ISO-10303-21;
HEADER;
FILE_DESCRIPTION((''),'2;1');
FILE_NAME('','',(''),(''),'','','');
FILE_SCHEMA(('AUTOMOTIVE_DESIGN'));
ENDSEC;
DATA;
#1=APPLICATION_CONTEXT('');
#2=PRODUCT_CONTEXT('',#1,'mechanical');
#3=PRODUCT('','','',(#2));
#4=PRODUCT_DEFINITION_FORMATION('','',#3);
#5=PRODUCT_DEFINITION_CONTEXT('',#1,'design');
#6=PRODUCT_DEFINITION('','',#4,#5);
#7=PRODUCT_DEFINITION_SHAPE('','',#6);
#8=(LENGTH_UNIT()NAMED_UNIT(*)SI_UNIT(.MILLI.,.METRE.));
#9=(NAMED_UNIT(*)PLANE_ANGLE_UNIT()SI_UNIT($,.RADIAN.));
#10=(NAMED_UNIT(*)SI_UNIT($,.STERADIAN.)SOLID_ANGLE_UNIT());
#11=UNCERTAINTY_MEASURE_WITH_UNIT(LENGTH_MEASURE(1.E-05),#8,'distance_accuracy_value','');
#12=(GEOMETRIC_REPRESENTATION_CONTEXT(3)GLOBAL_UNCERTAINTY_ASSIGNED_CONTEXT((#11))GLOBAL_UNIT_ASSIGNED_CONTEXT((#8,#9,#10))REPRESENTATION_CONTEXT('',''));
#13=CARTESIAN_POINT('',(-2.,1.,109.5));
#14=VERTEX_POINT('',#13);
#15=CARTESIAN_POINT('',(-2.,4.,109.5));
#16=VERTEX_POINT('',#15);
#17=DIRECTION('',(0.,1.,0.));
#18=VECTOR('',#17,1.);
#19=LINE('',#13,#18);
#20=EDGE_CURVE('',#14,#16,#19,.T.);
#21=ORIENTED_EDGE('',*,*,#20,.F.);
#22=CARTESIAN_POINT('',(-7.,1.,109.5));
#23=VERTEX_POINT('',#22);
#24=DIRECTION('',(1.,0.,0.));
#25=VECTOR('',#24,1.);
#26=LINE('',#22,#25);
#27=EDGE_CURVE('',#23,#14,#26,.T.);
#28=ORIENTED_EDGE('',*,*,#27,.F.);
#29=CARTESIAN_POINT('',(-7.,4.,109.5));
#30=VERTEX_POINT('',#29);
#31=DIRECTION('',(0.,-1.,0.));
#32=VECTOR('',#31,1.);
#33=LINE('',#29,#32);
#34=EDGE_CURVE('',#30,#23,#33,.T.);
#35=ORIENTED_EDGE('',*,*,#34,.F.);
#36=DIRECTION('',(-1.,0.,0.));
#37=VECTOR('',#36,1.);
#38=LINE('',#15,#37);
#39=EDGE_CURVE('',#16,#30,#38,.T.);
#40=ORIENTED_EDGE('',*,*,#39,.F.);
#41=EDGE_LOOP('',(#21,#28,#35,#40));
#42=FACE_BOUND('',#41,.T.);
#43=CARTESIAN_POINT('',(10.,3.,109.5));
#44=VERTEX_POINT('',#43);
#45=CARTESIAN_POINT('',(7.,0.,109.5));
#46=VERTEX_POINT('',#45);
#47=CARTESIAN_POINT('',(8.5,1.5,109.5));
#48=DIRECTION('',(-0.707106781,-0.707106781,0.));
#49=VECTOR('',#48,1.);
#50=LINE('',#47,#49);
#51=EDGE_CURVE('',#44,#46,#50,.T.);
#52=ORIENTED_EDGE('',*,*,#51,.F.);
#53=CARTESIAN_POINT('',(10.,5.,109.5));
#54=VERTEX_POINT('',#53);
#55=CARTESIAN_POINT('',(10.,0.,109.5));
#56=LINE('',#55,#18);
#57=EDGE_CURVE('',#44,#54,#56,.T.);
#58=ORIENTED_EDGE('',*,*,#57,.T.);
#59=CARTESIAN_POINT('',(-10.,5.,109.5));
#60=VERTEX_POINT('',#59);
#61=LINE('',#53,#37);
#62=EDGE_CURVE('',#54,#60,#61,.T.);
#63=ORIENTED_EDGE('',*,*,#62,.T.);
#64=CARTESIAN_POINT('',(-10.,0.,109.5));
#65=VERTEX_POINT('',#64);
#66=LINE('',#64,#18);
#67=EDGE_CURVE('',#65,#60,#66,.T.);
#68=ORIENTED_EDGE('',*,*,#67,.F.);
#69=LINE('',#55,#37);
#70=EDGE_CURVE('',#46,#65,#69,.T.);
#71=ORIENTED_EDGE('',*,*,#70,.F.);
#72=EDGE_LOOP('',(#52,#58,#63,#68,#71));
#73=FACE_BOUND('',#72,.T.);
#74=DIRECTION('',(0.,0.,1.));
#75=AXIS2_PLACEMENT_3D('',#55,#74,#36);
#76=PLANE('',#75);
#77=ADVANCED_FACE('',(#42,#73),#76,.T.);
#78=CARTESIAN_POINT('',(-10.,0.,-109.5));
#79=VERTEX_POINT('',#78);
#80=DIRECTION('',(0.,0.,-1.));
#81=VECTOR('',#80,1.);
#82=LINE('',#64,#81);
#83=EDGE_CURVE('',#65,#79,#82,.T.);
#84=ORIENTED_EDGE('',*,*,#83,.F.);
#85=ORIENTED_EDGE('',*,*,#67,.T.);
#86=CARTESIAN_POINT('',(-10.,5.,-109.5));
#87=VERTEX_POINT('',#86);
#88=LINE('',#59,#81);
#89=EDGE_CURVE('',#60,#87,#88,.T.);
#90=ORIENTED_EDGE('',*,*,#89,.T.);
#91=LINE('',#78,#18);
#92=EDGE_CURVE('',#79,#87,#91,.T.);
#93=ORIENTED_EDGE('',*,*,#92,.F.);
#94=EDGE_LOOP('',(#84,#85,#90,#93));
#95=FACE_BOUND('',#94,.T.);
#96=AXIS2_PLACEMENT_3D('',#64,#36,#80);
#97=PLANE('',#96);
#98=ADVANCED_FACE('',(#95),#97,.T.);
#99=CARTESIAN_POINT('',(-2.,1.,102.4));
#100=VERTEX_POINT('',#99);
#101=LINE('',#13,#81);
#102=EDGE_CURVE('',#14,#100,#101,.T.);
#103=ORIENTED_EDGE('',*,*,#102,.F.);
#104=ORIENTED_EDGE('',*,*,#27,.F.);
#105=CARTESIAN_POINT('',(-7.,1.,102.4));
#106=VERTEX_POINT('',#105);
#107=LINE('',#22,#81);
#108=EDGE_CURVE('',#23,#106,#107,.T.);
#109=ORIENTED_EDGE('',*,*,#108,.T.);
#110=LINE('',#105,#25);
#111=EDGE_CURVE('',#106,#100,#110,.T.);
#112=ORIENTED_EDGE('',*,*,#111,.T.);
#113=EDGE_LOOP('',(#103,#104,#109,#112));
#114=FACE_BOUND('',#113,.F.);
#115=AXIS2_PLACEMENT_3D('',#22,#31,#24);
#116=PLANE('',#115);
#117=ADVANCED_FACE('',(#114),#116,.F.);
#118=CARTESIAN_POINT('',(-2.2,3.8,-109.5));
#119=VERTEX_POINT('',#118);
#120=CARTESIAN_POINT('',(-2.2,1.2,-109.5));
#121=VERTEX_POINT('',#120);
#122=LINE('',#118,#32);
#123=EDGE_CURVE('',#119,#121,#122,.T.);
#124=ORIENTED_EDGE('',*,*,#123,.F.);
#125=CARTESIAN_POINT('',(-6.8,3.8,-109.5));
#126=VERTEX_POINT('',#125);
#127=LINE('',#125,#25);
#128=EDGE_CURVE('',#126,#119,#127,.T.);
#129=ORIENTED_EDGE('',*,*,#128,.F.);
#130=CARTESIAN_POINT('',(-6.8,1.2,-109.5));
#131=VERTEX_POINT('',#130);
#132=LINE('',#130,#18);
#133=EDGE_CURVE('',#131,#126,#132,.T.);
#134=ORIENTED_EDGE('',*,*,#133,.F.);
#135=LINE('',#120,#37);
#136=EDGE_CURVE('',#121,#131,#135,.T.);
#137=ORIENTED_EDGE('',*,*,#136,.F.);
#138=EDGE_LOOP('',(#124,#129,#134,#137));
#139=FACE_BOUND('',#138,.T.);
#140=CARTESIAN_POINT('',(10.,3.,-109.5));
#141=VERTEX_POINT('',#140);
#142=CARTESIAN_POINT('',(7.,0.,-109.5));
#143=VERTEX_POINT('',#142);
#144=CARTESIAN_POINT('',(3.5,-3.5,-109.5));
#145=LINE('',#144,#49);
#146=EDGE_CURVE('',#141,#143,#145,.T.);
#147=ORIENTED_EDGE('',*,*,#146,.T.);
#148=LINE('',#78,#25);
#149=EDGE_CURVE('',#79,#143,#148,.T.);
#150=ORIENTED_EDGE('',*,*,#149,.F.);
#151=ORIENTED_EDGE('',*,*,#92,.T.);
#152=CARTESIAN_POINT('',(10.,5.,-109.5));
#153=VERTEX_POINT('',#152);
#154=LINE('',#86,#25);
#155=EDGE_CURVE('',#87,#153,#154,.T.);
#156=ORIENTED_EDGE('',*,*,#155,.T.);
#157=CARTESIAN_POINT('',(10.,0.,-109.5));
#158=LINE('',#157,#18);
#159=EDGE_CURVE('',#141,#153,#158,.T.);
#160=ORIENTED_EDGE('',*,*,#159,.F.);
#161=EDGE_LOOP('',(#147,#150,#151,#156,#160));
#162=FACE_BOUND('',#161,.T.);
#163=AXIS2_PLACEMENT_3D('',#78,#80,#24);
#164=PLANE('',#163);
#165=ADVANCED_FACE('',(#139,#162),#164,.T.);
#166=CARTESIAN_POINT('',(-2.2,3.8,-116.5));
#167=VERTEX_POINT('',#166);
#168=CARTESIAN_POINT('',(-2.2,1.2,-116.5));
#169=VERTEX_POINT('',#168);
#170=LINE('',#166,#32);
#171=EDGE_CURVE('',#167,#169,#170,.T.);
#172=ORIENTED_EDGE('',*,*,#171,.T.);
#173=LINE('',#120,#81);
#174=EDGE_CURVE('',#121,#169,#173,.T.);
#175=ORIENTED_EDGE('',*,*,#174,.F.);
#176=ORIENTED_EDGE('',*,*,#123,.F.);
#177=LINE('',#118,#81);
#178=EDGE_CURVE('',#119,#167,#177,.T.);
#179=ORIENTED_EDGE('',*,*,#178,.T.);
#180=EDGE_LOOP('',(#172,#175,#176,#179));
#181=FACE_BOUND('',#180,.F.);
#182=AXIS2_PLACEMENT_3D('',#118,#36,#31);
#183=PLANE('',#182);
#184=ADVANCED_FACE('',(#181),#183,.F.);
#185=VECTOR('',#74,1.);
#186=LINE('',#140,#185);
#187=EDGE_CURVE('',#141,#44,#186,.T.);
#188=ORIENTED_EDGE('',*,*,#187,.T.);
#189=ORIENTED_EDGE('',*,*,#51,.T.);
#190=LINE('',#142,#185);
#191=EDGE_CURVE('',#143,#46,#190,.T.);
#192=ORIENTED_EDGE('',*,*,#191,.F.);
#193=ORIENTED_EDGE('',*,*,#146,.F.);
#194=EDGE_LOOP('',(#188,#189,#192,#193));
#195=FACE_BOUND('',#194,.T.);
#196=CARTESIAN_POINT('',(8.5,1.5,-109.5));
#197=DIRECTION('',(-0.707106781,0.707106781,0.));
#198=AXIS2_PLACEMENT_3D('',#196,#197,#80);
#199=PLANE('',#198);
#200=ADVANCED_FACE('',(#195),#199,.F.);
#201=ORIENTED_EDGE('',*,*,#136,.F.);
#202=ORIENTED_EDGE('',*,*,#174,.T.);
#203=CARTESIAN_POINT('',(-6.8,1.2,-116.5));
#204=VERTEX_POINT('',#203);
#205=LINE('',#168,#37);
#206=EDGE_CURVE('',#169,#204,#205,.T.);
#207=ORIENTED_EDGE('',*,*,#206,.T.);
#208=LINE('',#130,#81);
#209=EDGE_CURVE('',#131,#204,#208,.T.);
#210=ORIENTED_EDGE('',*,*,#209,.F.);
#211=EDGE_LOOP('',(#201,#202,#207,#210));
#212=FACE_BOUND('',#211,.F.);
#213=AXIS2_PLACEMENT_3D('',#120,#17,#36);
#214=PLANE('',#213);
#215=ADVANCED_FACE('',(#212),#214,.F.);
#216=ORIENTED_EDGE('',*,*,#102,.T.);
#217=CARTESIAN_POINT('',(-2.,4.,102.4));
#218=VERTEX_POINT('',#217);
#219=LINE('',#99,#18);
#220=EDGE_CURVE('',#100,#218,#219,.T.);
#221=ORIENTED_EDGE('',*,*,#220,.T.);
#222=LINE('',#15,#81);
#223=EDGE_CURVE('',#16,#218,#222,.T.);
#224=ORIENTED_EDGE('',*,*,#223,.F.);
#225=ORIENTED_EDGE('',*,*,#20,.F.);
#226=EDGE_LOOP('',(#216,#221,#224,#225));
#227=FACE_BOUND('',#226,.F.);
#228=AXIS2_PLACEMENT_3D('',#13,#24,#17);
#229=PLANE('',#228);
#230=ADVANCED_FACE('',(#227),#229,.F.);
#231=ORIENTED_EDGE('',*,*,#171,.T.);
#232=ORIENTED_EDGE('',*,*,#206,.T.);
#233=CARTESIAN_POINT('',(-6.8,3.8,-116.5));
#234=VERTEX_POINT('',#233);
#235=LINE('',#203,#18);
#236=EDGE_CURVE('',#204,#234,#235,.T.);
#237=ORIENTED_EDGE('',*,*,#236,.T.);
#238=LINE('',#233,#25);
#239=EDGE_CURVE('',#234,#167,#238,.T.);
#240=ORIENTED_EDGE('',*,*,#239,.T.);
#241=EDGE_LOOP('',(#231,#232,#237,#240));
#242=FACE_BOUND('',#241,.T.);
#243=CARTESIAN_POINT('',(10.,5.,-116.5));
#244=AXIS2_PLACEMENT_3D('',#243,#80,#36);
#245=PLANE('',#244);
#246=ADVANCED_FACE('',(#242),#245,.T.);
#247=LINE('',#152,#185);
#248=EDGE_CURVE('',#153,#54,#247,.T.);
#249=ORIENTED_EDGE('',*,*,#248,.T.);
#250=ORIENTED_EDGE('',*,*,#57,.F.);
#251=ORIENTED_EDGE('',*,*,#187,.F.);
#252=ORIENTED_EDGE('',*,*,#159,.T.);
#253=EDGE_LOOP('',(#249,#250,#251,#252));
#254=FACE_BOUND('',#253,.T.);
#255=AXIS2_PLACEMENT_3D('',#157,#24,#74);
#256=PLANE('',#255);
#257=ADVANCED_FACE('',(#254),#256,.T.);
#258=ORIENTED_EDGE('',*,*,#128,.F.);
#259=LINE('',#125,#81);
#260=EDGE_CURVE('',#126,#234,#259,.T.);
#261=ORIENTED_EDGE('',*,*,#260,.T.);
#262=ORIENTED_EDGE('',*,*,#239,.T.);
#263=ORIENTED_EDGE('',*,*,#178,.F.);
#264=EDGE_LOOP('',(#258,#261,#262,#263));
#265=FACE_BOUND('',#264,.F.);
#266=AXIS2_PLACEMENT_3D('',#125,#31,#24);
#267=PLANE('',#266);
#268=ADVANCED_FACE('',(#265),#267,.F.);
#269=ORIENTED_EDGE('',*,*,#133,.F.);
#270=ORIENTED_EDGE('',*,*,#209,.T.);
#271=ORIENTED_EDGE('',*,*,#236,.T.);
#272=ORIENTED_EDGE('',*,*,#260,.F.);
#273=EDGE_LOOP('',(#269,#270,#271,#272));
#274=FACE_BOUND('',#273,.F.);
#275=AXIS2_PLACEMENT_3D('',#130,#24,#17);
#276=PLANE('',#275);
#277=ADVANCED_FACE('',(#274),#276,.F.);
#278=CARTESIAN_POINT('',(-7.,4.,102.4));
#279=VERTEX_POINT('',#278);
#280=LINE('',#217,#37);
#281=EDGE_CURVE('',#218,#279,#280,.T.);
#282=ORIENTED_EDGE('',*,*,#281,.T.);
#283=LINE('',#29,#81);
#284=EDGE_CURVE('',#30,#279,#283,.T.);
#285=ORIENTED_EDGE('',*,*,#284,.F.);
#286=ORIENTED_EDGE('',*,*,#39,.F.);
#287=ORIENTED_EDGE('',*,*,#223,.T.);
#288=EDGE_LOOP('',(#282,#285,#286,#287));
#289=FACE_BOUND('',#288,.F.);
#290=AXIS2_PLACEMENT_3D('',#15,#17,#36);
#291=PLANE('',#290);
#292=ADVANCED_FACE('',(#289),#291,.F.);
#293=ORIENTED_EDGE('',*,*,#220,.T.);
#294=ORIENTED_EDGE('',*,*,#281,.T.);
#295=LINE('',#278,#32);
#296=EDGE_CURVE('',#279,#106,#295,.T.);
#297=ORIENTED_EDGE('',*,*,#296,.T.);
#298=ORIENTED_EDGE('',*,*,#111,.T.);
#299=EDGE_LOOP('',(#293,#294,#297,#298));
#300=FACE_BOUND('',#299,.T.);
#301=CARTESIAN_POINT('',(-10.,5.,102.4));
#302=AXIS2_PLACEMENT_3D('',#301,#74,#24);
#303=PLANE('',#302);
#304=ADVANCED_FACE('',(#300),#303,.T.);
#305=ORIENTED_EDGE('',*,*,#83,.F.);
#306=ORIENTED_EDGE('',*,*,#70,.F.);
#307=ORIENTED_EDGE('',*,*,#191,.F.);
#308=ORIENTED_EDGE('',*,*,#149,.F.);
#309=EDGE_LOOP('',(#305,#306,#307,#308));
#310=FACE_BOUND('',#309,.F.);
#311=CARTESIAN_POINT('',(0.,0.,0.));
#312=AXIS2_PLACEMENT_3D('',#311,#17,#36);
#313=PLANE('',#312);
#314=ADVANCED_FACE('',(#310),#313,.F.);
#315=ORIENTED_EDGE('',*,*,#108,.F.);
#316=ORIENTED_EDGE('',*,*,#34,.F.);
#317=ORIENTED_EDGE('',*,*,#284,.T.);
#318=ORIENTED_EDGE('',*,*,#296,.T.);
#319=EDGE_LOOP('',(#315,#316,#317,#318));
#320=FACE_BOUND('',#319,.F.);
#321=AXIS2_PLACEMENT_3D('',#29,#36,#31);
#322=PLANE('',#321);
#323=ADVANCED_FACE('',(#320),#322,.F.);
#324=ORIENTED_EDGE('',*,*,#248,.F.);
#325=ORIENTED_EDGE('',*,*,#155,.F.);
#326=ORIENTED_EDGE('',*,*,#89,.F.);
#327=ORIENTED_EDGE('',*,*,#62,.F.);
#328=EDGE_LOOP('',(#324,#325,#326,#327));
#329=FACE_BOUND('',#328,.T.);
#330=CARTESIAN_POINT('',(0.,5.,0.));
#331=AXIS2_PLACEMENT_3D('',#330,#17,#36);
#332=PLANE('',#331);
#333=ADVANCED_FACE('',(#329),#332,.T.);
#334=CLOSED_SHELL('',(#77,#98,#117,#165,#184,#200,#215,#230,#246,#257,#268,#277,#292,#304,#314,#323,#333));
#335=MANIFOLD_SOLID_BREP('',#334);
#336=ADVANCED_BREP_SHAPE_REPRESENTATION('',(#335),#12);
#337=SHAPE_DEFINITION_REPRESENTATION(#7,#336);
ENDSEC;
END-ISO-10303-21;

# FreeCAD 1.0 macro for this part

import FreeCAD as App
import Part
import Sketcher
Q = App.Units.Quantity


def edges_at(feature, points):
    """Names of the edges that pass closest to the given points."""
    edges = feature.Shape.Edges
    near = lambda p: min(range(len(edges)), key=lambda i: edges[i].distToShape(Part.Vertex(*p))[0])
    return sorted({f"Edge{near(p) + 1}" for p in points})


def add_polygon(sketch, points):
    """Adds a closed chain of lines whose ends are joined by coincident constraints."""
    first, n = sketch.GeometryCount, len(points)
    for a, b in zip(points, points[1:] + points[:1]):
        sketch.addGeometry(Part.LineSegment(App.Vector(*a, 0), App.Vector(*b, 0)), False)
    for i in range(n):
        sketch.addConstraint(Sketcher.Constraint("Coincident", first + i, 2, first + (i + 1) % n, 1))

doc = App.newDocument("Part")
body = doc.addObject("PartDesign::Body", "Body")

# Sketch on XZ plane
sketch1 = doc.addObject("Sketcher::SketchObject", "Sketch")
body.addObject(sketch1)
sketch1.AttachmentSupport = (doc.XZ_Plane, [""])
sketch1.MapMode = "FlatFace"
add_polygon(sketch1, [(-10, 110), (10, 110), (10, -110), (-10, -110)])  # lines 0-3
sketch1.addConstraint([
    Sketcher.Constraint("Horizontal", 0),
    Sketcher.Constraint("Vertical", 1),
    Sketcher.Constraint("Horizontal", 2),
    Sketcher.Constraint("Vertical", 3),
    Sketcher.Constraint("Symmetric", 0, 2, 2, 2, -1, 1),
    Sketcher.Constraint("DistanceX", 0, 1, 0, 2, Q("20 mm")),
    Sketcher.Constraint("DistanceY", 1, 2, 1, 1, Q("219 mm")),
])
pad1 = doc.addObject("PartDesign::Pad", "Pad")
body.addObject(pad1)
pad1.Profile = sketch1
pad1.Length = 5
pad1.Reversed = True
doc.recompute()

chamfer = doc.addObject("PartDesign::Chamfer", "Chamfer")
body.addObject(chamfer)
chamfer.Base = (pad1, edges_at(pad1, [(10, 0, 0)]))
chamfer.Size = 3

# Sketch on XY plane
sketch2 = doc.addObject("Sketcher::SketchObject", "Sketch001")
body.addObject(sketch2)
sketch2.AttachmentSupport = (doc.XY_Plane, [""])
sketch2.MapMode = "FlatFace"
sketch2.AttachmentOffset = App.Placement(App.Vector(0, 0, 109.5), App.Rotation())
add_polygon(sketch2, [(-7, 4), (-7, 1), (-2, 1), (-2, 4)])  # lines 0-3
sketch2.addConstraint([
    Sketcher.Constraint("Vertical", 0),
    Sketcher.Constraint("Horizontal", 1),
    Sketcher.Constraint("Vertical", 2),
    Sketcher.Constraint("Horizontal", 3),
    Sketcher.Constraint("DistanceX", 1, 1, 1, 2, Q("5 mm")),
    Sketcher.Constraint("DistanceY", 0, 2, 0, 1, Q("3 mm")),
    Sketcher.Constraint("DistanceX", 0, 2, -1, 1, Q("7 mm")),
    Sketcher.Constraint("DistanceY", -1, 1, 0, 2, Q("1 mm")),
])
pocket1 = doc.addObject("PartDesign::Pocket", "Pocket")
body.addObject(pocket1)
pocket1.Profile = sketch2
pocket1.Length = 7.1

# Sketch on XY plane
sketch3 = doc.addObject("Sketcher::SketchObject", "Sketch002")
body.addObject(sketch3)
sketch3.AttachmentSupport = (doc.XY_Plane, [""])
sketch3.MapMode = "FlatFace"
sketch3.AttachmentOffset = App.Placement(App.Vector(0, 0, -109.5), App.Rotation())
add_polygon(sketch3, [(-6.8, 3.8), (-2.2, 3.8), (-2.2, 1.2), (-6.8, 1.2)])  # lines 0-3
sketch3.addConstraint([
    Sketcher.Constraint("Horizontal", 0),
    Sketcher.Constraint("Vertical", 1),
    Sketcher.Constraint("Horizontal", 2),
    Sketcher.Constraint("Vertical", 3),
    Sketcher.Constraint("DistanceX", 0, 1, 0, 2, Q("4.6 mm")),
    Sketcher.Constraint("DistanceY", 1, 2, 1, 1, Q("2.6 mm")),
    Sketcher.Constraint("DistanceX", 0, 2, -1, 1, Q("2.2 mm")),
    Sketcher.Constraint("DistanceY", -1, 1, 0, 2, Q("3.8 mm")),
])
pad2 = doc.addObject("PartDesign::Pad", "Pad001")
body.addObject(pad2)
pad2.Profile = sketch3
pad2.Length = 7
pad2.Reversed = True

doc.recompute()
